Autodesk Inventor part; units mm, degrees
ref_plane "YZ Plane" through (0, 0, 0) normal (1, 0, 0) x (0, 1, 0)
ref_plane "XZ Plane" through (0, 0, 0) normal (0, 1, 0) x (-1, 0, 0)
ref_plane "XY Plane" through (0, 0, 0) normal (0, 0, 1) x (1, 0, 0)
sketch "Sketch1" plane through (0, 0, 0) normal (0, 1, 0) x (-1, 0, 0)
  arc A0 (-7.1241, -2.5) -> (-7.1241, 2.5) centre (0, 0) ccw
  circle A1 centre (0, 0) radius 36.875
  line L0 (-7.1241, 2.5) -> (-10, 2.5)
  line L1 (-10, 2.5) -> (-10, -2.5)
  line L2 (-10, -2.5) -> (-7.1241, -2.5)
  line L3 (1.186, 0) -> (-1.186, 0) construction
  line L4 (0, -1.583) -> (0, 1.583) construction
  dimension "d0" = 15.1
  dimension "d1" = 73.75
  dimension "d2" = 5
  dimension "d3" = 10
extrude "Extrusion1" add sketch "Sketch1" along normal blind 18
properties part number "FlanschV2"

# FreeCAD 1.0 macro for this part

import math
import FreeCAD as App
import Part
import Sketcher

V = App.Vector
Q = App.Units.Quantity

doc = App.newDocument("Part")
body = doc.addObject("PartDesign::Body", "Body")

# Sketch on XZ plane
sketch1 = body.newObject("Sketcher::SketchObject", "Sketch")
sketch1.AttachmentSupport = (doc.getObject("XZ_Plane"), [""])
sketch1.MapMode = "FlatFace"
sketch1.addGeometry([
    Part.Circle(V(0, 0, 0), V(0, 0, 1), 36.9),  # 0
    Part.ArcOfCircle(Part.Circle(V(0, 0, 0), V(0, 0, 1), 7.6), math.radians(19), math.radians(341)),  # 1
    Part.LineSegment(V(7.1, -2.5, 0), V(10, -2.5, 0)),  # 2
    Part.LineSegment(V(10, -2.5, 0), V(10, 2.5, 0)),  # 3
    Part.LineSegment(V(10, 2.5, 0), V(7.1, 2.5, 0)),  # 4
], False)
sketch1.addConstraint([
    Sketcher.Constraint("Coincident", 1, 2, 2, 1),
    Sketcher.Constraint("Coincident", 2, 2, 3, 1),
    Sketcher.Constraint("Coincident", 3, 2, 4, 1),
    Sketcher.Constraint("Coincident", 4, 2, 1, 1),
    Sketcher.Constraint("Horizontal", 2),
    Sketcher.Constraint("Vertical", 3),
    Sketcher.Constraint("Horizontal", 4),
    Sketcher.Constraint("Coincident", 0, 3, -1, 1),
    Sketcher.Constraint("Coincident", 1, 3, -1, 1),
    Sketcher.Constraint("Vertical", 1, 2, 4, 2),
    Sketcher.Constraint("Diameter", 0, Q("73.75 mm")),
    Sketcher.Constraint("DistanceY", 3, 1, 3, 2, Q("5 mm")),
    Sketcher.Constraint("Radius", 1, Q("7.55 mm")),
    Sketcher.Constraint("DistanceX", -1, 1, 2, 2, Q("10 mm")),
])
pad1 = body.newObject("PartDesign::Pad", "Pad")
pad1.Profile = sketch1
pad1.Length = 18
pad1.Reversed = True

doc.recompute()
